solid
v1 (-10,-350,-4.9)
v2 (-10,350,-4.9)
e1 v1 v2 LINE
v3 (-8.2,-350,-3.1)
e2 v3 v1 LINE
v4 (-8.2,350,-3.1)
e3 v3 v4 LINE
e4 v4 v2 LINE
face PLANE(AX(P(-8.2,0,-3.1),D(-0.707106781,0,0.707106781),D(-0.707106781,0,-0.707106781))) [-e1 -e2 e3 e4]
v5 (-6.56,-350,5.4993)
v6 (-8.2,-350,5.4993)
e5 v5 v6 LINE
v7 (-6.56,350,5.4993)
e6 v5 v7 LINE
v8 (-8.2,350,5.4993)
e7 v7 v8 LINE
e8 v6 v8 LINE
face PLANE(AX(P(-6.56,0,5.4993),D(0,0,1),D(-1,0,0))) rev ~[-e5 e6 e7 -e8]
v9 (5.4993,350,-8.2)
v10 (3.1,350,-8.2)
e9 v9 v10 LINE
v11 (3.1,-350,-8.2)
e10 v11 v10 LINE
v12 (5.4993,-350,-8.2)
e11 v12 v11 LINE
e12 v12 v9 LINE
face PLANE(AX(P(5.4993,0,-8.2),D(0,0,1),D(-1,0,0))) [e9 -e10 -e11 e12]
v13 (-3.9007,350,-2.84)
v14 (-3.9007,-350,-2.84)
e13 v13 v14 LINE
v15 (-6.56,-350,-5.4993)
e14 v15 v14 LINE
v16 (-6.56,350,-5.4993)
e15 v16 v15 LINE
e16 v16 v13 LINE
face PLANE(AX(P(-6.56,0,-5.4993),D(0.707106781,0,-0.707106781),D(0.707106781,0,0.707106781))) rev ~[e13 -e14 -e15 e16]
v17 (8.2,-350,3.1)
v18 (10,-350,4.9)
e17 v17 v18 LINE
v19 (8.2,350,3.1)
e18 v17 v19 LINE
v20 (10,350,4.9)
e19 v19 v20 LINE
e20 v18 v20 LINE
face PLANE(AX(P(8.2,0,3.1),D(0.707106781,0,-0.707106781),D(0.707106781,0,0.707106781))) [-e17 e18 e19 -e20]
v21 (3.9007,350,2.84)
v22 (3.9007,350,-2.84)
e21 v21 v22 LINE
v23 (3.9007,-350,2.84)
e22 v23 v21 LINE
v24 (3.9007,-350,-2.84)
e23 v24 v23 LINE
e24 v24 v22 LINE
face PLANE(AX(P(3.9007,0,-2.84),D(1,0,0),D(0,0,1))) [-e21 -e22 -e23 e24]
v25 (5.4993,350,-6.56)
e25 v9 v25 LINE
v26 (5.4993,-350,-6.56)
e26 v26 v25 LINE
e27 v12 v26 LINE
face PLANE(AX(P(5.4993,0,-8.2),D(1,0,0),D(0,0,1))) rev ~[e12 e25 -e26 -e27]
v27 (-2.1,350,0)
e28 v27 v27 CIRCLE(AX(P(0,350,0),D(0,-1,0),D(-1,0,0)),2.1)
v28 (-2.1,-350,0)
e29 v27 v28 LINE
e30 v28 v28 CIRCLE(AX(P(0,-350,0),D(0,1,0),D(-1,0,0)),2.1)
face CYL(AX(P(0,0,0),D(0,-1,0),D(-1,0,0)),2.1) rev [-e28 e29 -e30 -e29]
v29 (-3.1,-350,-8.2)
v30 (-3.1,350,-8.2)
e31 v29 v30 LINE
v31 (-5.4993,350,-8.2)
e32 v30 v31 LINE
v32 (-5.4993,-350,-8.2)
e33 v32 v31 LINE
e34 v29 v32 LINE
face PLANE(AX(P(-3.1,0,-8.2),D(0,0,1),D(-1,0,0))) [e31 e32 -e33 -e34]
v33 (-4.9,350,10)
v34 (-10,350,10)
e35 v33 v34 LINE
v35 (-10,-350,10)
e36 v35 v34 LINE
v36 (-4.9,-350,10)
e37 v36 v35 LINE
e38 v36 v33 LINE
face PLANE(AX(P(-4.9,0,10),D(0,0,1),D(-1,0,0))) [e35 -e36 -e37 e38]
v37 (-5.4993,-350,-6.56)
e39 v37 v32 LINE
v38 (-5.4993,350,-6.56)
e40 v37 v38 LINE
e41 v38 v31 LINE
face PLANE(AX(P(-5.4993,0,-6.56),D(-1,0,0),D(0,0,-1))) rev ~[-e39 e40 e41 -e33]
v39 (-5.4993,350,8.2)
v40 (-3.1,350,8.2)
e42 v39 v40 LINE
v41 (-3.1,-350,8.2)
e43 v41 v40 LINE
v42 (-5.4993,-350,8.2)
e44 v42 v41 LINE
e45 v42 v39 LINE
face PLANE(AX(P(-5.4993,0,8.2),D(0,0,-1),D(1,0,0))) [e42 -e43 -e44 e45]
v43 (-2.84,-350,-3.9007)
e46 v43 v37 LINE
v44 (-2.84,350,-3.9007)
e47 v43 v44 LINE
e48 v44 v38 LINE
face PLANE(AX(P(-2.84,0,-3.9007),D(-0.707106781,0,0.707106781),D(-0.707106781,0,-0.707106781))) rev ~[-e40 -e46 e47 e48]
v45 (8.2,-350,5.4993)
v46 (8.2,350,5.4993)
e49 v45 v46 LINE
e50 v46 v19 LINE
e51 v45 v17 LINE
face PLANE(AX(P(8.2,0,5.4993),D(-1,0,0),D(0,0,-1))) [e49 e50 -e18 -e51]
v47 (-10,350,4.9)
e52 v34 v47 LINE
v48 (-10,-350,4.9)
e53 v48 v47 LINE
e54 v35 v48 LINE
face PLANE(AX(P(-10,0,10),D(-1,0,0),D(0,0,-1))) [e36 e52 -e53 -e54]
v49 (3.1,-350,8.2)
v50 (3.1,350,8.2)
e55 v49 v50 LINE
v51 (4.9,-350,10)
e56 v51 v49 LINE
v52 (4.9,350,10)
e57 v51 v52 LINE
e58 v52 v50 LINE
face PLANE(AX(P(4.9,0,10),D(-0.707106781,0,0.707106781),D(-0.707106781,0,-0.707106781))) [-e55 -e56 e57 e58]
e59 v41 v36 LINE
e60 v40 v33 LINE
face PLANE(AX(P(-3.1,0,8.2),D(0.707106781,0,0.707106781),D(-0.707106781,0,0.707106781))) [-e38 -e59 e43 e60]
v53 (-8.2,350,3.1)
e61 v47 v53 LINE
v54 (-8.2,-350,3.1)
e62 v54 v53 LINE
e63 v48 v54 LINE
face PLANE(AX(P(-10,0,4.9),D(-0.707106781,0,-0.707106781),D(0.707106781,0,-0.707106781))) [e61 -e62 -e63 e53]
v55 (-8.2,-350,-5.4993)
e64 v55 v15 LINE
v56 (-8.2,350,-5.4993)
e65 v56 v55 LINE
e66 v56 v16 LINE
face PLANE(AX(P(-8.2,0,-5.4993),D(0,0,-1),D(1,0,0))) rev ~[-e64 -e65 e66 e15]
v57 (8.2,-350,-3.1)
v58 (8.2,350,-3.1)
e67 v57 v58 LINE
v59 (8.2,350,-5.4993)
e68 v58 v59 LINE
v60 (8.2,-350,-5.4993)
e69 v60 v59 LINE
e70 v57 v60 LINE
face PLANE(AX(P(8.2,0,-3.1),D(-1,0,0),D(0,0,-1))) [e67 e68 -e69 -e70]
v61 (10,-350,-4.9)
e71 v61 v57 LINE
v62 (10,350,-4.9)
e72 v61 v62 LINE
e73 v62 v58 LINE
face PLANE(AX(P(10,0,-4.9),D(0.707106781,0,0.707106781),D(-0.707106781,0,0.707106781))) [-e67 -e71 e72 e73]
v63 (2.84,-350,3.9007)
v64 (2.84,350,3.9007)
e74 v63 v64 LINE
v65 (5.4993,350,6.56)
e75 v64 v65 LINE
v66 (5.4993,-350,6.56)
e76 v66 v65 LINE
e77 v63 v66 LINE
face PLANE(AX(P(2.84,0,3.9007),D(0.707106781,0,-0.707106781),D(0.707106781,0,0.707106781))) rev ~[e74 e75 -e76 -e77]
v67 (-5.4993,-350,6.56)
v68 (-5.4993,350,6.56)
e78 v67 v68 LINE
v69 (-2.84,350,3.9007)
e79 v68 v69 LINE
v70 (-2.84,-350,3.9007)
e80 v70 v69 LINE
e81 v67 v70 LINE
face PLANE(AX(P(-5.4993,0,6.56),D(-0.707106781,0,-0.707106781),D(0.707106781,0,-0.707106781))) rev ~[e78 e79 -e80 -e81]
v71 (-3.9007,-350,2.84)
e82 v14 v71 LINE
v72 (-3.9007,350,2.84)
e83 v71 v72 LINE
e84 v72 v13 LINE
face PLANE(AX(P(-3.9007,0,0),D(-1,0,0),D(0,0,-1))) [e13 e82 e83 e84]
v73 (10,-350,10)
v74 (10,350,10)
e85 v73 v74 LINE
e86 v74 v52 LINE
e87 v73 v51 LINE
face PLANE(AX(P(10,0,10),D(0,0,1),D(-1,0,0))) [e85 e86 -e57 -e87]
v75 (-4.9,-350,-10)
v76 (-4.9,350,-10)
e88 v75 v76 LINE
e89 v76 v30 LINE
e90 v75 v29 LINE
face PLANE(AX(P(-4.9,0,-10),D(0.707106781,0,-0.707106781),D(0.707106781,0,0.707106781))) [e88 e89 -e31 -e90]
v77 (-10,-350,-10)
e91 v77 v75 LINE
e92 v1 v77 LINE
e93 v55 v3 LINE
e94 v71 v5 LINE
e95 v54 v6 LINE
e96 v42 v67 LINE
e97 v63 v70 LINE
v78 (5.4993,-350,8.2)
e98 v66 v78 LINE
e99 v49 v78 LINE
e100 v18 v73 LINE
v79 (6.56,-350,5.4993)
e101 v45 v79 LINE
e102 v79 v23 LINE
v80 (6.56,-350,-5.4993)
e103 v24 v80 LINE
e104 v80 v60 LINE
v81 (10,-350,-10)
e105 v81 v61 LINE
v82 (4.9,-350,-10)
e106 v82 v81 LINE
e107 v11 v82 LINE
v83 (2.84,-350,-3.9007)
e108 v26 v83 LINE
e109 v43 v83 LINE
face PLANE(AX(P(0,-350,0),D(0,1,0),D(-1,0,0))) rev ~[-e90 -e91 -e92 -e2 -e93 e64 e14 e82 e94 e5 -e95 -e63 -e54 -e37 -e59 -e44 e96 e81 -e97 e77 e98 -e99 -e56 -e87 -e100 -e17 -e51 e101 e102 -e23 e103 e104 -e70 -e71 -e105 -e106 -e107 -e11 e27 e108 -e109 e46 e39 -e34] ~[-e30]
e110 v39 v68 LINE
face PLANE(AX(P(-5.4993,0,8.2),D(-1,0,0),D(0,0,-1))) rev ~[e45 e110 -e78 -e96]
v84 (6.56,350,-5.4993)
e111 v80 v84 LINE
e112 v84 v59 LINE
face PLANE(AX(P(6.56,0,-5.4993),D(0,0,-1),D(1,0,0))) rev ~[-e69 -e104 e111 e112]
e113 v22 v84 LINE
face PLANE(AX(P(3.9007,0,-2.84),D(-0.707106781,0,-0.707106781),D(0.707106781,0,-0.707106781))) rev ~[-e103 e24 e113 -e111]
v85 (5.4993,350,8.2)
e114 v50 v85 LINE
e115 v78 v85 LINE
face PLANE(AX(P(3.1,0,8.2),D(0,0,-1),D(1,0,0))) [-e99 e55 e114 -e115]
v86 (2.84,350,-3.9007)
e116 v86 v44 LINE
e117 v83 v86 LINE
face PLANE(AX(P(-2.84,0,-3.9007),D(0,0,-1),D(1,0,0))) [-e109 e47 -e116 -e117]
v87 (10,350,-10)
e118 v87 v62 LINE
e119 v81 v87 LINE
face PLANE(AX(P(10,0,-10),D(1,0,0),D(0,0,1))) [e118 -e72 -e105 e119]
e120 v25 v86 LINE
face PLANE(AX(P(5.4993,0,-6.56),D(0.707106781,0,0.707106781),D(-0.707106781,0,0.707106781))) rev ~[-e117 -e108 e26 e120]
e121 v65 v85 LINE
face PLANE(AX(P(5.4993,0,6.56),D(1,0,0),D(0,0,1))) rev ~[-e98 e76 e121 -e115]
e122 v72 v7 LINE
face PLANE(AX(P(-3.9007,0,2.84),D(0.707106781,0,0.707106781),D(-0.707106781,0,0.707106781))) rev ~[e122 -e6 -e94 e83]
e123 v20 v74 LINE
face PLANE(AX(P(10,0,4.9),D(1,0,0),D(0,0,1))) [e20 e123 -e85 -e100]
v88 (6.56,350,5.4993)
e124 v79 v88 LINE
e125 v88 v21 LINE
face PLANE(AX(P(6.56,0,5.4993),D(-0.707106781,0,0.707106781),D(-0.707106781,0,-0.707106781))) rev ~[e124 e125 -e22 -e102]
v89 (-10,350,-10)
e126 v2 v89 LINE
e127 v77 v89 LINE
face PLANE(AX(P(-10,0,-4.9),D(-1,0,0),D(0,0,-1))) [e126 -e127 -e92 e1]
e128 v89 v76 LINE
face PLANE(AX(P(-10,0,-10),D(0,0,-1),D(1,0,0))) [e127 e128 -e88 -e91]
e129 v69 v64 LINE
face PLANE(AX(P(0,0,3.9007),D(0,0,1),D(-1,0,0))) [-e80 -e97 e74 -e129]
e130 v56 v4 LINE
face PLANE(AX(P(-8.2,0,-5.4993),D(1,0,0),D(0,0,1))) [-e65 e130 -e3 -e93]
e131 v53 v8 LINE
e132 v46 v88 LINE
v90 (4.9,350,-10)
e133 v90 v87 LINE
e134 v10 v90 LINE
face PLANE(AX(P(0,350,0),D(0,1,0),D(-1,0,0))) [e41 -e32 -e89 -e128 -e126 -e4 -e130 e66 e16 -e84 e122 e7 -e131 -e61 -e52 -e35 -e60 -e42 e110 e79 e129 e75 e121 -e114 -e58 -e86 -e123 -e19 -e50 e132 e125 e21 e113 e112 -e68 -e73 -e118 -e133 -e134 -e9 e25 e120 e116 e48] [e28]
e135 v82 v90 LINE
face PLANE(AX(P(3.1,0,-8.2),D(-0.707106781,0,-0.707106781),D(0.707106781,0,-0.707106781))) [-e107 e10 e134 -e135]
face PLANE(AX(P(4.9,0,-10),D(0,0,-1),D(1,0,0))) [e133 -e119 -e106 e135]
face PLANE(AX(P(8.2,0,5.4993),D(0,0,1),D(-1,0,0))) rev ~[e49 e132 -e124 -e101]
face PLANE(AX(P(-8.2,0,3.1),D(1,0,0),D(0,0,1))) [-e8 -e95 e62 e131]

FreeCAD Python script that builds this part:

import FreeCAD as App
import Part
import Sketcher
from FreeCAD import Vector


def add_polygon(sketch, points):
    """Adds a closed chain of lines whose ends are joined by coincident constraints."""
    first, n = sketch.GeometryCount, len(points)
    for a, b in zip(points, points[1:] + points[:1]):
        sketch.addGeometry(Part.LineSegment(App.Vector(*a, 0), App.Vector(*b, 0)), False)
    for i in range(n):
        sketch.addConstraint(Sketcher.Constraint("Coincident", first + i, 2, first + (i + 1) % n, 1))

doc = App.newDocument("Part")
params = doc.addObject("Spreadsheet::Sheet", "Params")
for row, (alias, value) in enumerate([
    ("sketch1_diameter", "4.2 mm"),
    ("sketch1_width", "1.64 mm"),
    ("pad1_length", "700 mm"),
], start=1):
    params.set(f"A{row}", alias)
    params.set(f"B{row}", "=" + value)
    params.setAlias(f"B{row}", alias)

body = doc.addObject("PartDesign::Body", "Body")

# Sketch on XZ plane
sketch1 = body.newObject("Sketcher::SketchObject", "Sketch")
sketch1.AttachmentSupport = (doc.getObject("XZ_Plane"), [""])
sketch1.MapMode = "FlatFace"
add_polygon(sketch1, [(-3.9007, -2.84), (-3.9007, 2.84), (-6.56, 5.4993), (-8.2, 5.4993), (-8.2, 3.1), (-10, 4.9), (-10, 10), (-4.9, 10), (-3.1, 8.2), (-5.4993, 8.2), (-5.4993, 6.56), (-2.84, 3.9007), (2.84, 3.9007), (5.4993, 6.56), (5.4993, 8.2), (3.1, 8.2), (4.9, 10), (10, 10), (10, 4.9), (8.2, 3.1), (8.2, 5.4993), (6.56, 5.4993), (3.9007, 2.84), (3.9007, -2.84), (6.56, -5.4993), (8.2, -5.4993), (8.2, -3.1), (10, -4.9), (10, -10), (4.9, -10), (3.1, -8.2), (5.4993, -8.2), (5.4993, -6.56), (2.84, -3.9007), (-2.84, -3.9007), (-5.4993, -6.56), (-5.4993, -8.2), (-3.1, -8.2), (-4.9, -10), (-10, -10), (-10, -4.9), (-8.2, -3.1), (-8.2, -5.4993), (-6.56, -5.4993)])  # lines 0-43
sketch1.addGeometry(Part.Circle(Vector(0, 0, 0), Vector(0, 0, 1), 2.1), False)  # 44
sketch1.addConstraint([
    Sketcher.Constraint("Vertical", 0),
    Sketcher.Constraint("Horizontal", 2),
    Sketcher.Constraint("Vertical", 3),
    Sketcher.Constraint("Vertical", 5),
    Sketcher.Constraint("Horizontal", 6),
    Sketcher.Constraint("Horizontal", 8),
    Sketcher.Constraint("Vertical", 9),
    Sketcher.Constraint("Horizontal", 11),
    Sketcher.Constraint("Vertical", 13),
    Sketcher.Constraint("Horizontal", 14),
    Sketcher.Constraint("Horizontal", 16),
    Sketcher.Constraint("Vertical", 17),
    Sketcher.Constraint("Vertical", 19),
    Sketcher.Constraint("Horizontal", 20),
    Sketcher.Constraint("Vertical", 22),
    Sketcher.Constraint("Horizontal", 24),
    Sketcher.Constraint("Vertical", 25),
    Sketcher.Constraint("Vertical", 27),
    Sketcher.Constraint("Horizontal", 28),
    Sketcher.Constraint("Horizontal", 30),
    Sketcher.Constraint("Vertical", 31),
    Sketcher.Constraint("Horizontal", 33),
    Sketcher.Constraint("Vertical", 35),
    Sketcher.Constraint("Horizontal", 36),
    Sketcher.Constraint("Horizontal", 38),
    Sketcher.Constraint("Vertical", 39),
    Sketcher.Constraint("Vertical", 41),
    Sketcher.Constraint("Horizontal", 42),
    Sketcher.Constraint("Coincident", 44, 3, -1, 1),
    Sketcher.Constraint("Symmetric", 0, 2, 22, 2, -1, 1),
    Sketcher.Constraint("Symmetric", 1, 2, 23, 2, -1, 1),
    Sketcher.Constraint("Symmetric", 3, 2, 25, 2, -1, 1),
    Sketcher.Constraint("Symmetric", 4, 2, 26, 2, -1, 1),
    Sketcher.Constraint("Symmetric", 6, 2, 28, 2, -1, 1),
    Sketcher.Constraint("Symmetric", 7, 2, 29, 2, -1, 1),
    Sketcher.Constraint("Symmetric", 9, 2, 31, 2, -1, 1),
    Sketcher.Constraint("Symmetric", 10, 2, 32, 2, -1, 1),
    Sketcher.Constraint("Symmetric", 12, 2, 34, 2, -1, 1),
    Sketcher.Constraint("Symmetric", 14, 2, 36, 2, -1, 1),
    Sketcher.Constraint("Symmetric", 15, 2, 37, 2, -1, 1),
    Sketcher.Constraint("Symmetric", 17, 2, 39, 2, -1, 1),
    Sketcher.Constraint("Symmetric", 18, 2, 40, 2, -1, 1),
    Sketcher.Constraint("Symmetric", 20, 2, 42, 2, -1, 1),
    Sketcher.Constraint("Symmetric", 9, 2, 12, 2, -2),
    Sketcher.Constraint("Symmetric", 7, 2, 14, 2, -2),
    Sketcher.Constraint("Symmetric", 6, 2, 15, 2, -2),
    Sketcher.Constraint("Symmetric", 4, 2, 17, 2, -2),
    Sketcher.Constraint("Symmetric", 3, 2, 18, 2, -2),
    Sketcher.Constraint("Symmetric", 1, 2, 20, 2, -2),
    Sketcher.Constraint("Parallel", 1, 4),
    Sketcher.Constraint("Parallel", 4, 7),
    Sketcher.Constraint("Parallel", 7, 10),
    Sketcher.Constraint("Perpendicular", 10, 12),
    Sketcher.Constraint("Parallel", 12, 15),
    Sketcher.Constraint("Parallel", 18, 21),
    Sketcher.Constraint("Perpendicular", 32, 34),
    Sketcher.Constraint("Parallel", 40, 43),
    Sketcher.Constraint("Equal", 33, 0),
    Sketcher.Constraint("Equal", 36, 3),
    Sketcher.Constraint("Equal", 38, 5),
    Sketcher.Constraint("Equal", 42, 9),
    Sketcher.Constraint("Equal", 4, 7),
    Sketcher.Constraint("Equal", 1, 10),
    Sketcher.Constraint("Diameter", 44, 4.2),
    Sketcher.Constraint("DistanceX", 4, 2, -1, 1, 10.0),
    Sketcher.Constraint("DistanceX", 2, 2, 2, 1, 1.64),
    Sketcher.Constraint("DistanceY", -1, 1, 3, 2, 3.1),
    Sketcher.Constraint("DistanceX", 4, 2, 2, 2, 1.8),
    Sketcher.Constraint("DistanceY", -1, 1, 0, 2, 2.84),
    Sketcher.Constraint("DistanceX", 8, 2, 8, 1, 2.3993),
])
sketch1.setExpression("Constraints[107]", "Params.sketch1_diameter")
sketch1.setExpression("Constraints[109]", "Params.sketch1_width")
pad1 = body.newObject("PartDesign::Pad", "Pad")
pad1.Profile = sketch1
pad1.setExpression("Length", "Params.pad1_length")
pad1.Midplane = True

doc.recompute()
